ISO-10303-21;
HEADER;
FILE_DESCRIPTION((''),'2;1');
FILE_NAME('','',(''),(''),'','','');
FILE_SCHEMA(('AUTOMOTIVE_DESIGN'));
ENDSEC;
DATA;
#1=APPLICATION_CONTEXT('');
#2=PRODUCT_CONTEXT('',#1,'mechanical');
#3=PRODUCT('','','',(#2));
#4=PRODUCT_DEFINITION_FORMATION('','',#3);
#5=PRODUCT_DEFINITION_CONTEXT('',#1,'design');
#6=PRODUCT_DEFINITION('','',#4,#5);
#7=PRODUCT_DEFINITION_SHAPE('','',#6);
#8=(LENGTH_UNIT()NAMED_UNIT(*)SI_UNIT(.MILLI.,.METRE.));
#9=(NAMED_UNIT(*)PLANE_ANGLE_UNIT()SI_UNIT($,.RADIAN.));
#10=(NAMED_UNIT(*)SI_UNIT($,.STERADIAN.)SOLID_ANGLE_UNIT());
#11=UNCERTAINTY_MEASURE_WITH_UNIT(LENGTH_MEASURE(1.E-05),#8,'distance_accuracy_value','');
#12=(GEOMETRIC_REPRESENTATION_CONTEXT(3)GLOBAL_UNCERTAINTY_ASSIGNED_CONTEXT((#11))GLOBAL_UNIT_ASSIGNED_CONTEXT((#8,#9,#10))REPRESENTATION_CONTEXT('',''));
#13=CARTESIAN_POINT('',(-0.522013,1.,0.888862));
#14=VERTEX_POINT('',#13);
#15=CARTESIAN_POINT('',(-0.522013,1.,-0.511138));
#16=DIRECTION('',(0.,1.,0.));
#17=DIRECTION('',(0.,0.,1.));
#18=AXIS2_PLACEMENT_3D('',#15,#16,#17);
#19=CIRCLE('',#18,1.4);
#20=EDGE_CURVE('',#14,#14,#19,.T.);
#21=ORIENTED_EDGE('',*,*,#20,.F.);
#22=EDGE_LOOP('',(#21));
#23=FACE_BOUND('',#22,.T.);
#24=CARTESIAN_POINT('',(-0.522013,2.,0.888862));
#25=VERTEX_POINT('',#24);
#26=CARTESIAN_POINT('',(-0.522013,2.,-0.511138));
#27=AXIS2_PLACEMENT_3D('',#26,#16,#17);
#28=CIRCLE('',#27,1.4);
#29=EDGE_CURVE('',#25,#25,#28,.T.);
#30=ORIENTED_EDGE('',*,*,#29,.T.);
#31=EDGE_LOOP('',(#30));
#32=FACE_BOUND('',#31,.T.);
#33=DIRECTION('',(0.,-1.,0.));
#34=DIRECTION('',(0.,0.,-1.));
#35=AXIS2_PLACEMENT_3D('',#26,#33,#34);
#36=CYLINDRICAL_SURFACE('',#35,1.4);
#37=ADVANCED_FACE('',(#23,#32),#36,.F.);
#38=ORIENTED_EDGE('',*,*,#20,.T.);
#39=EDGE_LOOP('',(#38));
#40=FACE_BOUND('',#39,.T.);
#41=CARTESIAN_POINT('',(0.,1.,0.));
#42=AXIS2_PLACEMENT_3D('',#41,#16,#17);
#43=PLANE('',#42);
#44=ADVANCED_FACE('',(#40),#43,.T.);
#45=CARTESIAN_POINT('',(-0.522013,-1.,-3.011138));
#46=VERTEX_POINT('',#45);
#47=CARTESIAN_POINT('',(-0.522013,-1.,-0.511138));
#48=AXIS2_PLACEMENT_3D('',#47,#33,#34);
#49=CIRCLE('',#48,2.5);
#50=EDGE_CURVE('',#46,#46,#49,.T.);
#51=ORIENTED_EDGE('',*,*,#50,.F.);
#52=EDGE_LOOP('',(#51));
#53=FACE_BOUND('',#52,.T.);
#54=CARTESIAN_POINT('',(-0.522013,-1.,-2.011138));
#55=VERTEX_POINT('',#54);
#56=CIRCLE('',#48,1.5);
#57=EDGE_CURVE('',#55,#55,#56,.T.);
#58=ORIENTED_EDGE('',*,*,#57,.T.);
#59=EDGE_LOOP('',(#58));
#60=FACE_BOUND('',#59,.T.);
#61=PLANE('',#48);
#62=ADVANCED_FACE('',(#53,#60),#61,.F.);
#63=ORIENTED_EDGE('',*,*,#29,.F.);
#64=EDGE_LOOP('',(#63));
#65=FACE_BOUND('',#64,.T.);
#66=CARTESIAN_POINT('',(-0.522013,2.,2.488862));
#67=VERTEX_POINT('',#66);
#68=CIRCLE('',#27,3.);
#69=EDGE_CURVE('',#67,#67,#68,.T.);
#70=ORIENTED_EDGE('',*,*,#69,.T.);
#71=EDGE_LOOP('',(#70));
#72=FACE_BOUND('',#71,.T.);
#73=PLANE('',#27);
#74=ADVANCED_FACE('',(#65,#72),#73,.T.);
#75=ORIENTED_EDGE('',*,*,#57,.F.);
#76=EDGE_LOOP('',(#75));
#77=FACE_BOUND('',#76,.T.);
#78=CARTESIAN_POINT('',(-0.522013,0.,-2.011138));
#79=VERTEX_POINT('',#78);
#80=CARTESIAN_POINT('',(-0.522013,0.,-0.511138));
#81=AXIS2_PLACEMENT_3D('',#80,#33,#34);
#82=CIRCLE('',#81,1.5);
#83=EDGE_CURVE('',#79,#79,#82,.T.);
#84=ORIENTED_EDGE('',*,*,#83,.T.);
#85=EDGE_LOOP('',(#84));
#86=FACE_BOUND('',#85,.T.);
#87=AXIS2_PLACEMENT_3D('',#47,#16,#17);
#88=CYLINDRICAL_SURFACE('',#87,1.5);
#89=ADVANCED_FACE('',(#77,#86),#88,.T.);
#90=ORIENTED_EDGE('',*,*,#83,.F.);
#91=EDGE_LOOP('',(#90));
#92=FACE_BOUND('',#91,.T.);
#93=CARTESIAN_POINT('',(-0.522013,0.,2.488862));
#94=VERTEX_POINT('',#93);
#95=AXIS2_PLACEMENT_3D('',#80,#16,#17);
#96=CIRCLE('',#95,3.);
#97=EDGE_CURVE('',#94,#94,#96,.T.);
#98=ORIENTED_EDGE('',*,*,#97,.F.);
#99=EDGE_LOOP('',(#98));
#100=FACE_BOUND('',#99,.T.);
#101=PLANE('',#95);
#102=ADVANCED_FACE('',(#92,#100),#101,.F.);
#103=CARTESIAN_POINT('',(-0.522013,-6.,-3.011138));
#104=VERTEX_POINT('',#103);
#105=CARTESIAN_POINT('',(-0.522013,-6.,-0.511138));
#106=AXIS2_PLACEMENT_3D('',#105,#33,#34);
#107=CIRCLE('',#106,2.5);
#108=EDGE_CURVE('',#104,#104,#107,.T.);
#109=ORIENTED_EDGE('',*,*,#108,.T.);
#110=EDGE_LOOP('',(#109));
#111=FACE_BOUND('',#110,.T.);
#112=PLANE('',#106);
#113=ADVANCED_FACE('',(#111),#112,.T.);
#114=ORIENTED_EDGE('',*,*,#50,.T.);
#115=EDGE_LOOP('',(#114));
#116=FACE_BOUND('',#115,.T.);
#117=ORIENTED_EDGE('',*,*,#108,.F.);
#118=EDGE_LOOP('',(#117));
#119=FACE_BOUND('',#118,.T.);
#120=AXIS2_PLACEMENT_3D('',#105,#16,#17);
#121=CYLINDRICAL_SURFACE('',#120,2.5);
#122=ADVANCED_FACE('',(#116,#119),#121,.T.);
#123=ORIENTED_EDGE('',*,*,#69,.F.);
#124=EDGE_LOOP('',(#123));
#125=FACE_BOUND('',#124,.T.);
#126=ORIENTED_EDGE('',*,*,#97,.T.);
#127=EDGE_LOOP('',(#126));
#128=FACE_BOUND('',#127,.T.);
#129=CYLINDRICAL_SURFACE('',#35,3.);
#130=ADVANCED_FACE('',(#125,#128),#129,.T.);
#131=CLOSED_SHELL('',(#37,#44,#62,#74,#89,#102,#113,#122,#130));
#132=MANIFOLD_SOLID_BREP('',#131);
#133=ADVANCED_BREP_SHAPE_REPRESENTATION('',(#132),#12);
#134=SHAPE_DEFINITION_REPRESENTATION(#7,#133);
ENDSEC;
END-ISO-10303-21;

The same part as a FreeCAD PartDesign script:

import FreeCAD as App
import Part
import Sketcher

V = App.Vector
Q = App.Units.Quantity

doc = App.newDocument("Part")
body = doc.addObject("PartDesign::Body", "Body")

# Sketch on XZ plane
sketch1 = doc.addObject("Sketcher::SketchObject", "Sketch")
body.addObject(sketch1)
sketch1.AttachmentSupport = (doc.XZ_Plane, [""])
sketch1.MapMode = "FlatFace"
sketch1.addGeometry([
    Part.Circle(V(-0.5, -0.5, 0), V(0, 0, 1), 3),
    Part.Circle(V(-0.5, -0.5, 0), V(0, 0, 1), 1.4),
], False)
sketch1.addConstraint([
    Sketcher.Constraint("Coincident", 1, 3, 0, 3),
    Sketcher.Constraint("Diameter", 0, Q("6 mm")),
    Sketcher.Constraint("Diameter", 1, Q("2.8 mm")),
    Sketcher.Constraint("DistanceY", 0, 3, -1, 1, Q("0.511138 mm")),
    Sketcher.Constraint("DistanceX", 0, 3, -1, 1, Q("0.522013 mm")),
])
pad1 = doc.addObject("PartDesign::Pad", "Pad")
body.addObject(pad1)
pad1.Profile = sketch1
pad1.Length = 2
pad1.Reversed = True

# Sketch on XZ plane
sketch2 = doc.addObject("Sketcher::SketchObject", "Sketch001")
body.addObject(sketch2)
sketch2.AttachmentSupport = (doc.XZ_Plane, [""])
sketch2.MapMode = "FlatFace"
sketch2.addGeometry(Part.Circle(V(-0.5, -0.5, 0), V(0, 0, 1), 1.4), False)
sketch2.addConstraint([
    Sketcher.Constraint("Diameter", 0, Q("2.8 mm")),
    Sketcher.Constraint("DistanceY", 0, 3, -1, 1, Q("0.511138 mm")),
    Sketcher.Constraint("DistanceX", 0, 3, -1, 1, Q("0.522013 mm")),
])
pad2 = doc.addObject("PartDesign::Pad", "Pad001")
body.addObject(pad2)
pad2.Profile = sketch2
pad2.Length = 1
pad2.Reversed = True

# Sketch on XZ plane
sketch3 = doc.addObject("Sketcher::SketchObject", "Sketch002")
body.addObject(sketch3)
sketch3.AttachmentSupport = (doc.XZ_Plane, [""])
sketch3.MapMode = "FlatFace"
sketch3.addGeometry(Part.Circle(V(-0.5, -0.5, 0), V(0, 0, 1), 1.5), False)
sketch3.addConstraint([
    Sketcher.Constraint("Diameter", 0, Q("3 mm")),
    Sketcher.Constraint("DistanceY", 0, 3, -1, 1, Q("0.511138 mm")),
    Sketcher.Constraint("DistanceX", 0, 3, -1, 1, Q("0.522013 mm")),
])
pad3 = doc.addObject("PartDesign::Pad", "Pad002")
body.addObject(pad3)
pad3.Profile = sketch3
pad3.Length = 1

# Sketch on XZ plane
sketch4 = doc.addObject("Sketcher::SketchObject", "Sketch003")
body.addObject(sketch4)
sketch4.AttachmentSupport = (doc.XZ_Plane, [""])
sketch4.MapMode = "FlatFace"
sketch4.AttachmentOffset = App.Placement(V(0, 0, 1), App.Rotation())
sketch4.addGeometry(Part.Circle(V(-0.5, -0.5, 0), V(0, 0, 1), 2.5), False)
sketch4.addConstraint([
    Sketcher.Constraint("Diameter", 0, Q("5 mm")),
    Sketcher.Constraint("DistanceY", 0, 3, -1, 1, Q("0.511138 mm")),
    Sketcher.Constraint("DistanceX", 0, 3, -1, 1, Q("0.522013 mm")),
])
pad4 = doc.addObject("PartDesign::Pad", "Pad003")
body.addObject(pad4)
pad4.Profile = sketch4
pad4.Length = 5

doc.recompute()
